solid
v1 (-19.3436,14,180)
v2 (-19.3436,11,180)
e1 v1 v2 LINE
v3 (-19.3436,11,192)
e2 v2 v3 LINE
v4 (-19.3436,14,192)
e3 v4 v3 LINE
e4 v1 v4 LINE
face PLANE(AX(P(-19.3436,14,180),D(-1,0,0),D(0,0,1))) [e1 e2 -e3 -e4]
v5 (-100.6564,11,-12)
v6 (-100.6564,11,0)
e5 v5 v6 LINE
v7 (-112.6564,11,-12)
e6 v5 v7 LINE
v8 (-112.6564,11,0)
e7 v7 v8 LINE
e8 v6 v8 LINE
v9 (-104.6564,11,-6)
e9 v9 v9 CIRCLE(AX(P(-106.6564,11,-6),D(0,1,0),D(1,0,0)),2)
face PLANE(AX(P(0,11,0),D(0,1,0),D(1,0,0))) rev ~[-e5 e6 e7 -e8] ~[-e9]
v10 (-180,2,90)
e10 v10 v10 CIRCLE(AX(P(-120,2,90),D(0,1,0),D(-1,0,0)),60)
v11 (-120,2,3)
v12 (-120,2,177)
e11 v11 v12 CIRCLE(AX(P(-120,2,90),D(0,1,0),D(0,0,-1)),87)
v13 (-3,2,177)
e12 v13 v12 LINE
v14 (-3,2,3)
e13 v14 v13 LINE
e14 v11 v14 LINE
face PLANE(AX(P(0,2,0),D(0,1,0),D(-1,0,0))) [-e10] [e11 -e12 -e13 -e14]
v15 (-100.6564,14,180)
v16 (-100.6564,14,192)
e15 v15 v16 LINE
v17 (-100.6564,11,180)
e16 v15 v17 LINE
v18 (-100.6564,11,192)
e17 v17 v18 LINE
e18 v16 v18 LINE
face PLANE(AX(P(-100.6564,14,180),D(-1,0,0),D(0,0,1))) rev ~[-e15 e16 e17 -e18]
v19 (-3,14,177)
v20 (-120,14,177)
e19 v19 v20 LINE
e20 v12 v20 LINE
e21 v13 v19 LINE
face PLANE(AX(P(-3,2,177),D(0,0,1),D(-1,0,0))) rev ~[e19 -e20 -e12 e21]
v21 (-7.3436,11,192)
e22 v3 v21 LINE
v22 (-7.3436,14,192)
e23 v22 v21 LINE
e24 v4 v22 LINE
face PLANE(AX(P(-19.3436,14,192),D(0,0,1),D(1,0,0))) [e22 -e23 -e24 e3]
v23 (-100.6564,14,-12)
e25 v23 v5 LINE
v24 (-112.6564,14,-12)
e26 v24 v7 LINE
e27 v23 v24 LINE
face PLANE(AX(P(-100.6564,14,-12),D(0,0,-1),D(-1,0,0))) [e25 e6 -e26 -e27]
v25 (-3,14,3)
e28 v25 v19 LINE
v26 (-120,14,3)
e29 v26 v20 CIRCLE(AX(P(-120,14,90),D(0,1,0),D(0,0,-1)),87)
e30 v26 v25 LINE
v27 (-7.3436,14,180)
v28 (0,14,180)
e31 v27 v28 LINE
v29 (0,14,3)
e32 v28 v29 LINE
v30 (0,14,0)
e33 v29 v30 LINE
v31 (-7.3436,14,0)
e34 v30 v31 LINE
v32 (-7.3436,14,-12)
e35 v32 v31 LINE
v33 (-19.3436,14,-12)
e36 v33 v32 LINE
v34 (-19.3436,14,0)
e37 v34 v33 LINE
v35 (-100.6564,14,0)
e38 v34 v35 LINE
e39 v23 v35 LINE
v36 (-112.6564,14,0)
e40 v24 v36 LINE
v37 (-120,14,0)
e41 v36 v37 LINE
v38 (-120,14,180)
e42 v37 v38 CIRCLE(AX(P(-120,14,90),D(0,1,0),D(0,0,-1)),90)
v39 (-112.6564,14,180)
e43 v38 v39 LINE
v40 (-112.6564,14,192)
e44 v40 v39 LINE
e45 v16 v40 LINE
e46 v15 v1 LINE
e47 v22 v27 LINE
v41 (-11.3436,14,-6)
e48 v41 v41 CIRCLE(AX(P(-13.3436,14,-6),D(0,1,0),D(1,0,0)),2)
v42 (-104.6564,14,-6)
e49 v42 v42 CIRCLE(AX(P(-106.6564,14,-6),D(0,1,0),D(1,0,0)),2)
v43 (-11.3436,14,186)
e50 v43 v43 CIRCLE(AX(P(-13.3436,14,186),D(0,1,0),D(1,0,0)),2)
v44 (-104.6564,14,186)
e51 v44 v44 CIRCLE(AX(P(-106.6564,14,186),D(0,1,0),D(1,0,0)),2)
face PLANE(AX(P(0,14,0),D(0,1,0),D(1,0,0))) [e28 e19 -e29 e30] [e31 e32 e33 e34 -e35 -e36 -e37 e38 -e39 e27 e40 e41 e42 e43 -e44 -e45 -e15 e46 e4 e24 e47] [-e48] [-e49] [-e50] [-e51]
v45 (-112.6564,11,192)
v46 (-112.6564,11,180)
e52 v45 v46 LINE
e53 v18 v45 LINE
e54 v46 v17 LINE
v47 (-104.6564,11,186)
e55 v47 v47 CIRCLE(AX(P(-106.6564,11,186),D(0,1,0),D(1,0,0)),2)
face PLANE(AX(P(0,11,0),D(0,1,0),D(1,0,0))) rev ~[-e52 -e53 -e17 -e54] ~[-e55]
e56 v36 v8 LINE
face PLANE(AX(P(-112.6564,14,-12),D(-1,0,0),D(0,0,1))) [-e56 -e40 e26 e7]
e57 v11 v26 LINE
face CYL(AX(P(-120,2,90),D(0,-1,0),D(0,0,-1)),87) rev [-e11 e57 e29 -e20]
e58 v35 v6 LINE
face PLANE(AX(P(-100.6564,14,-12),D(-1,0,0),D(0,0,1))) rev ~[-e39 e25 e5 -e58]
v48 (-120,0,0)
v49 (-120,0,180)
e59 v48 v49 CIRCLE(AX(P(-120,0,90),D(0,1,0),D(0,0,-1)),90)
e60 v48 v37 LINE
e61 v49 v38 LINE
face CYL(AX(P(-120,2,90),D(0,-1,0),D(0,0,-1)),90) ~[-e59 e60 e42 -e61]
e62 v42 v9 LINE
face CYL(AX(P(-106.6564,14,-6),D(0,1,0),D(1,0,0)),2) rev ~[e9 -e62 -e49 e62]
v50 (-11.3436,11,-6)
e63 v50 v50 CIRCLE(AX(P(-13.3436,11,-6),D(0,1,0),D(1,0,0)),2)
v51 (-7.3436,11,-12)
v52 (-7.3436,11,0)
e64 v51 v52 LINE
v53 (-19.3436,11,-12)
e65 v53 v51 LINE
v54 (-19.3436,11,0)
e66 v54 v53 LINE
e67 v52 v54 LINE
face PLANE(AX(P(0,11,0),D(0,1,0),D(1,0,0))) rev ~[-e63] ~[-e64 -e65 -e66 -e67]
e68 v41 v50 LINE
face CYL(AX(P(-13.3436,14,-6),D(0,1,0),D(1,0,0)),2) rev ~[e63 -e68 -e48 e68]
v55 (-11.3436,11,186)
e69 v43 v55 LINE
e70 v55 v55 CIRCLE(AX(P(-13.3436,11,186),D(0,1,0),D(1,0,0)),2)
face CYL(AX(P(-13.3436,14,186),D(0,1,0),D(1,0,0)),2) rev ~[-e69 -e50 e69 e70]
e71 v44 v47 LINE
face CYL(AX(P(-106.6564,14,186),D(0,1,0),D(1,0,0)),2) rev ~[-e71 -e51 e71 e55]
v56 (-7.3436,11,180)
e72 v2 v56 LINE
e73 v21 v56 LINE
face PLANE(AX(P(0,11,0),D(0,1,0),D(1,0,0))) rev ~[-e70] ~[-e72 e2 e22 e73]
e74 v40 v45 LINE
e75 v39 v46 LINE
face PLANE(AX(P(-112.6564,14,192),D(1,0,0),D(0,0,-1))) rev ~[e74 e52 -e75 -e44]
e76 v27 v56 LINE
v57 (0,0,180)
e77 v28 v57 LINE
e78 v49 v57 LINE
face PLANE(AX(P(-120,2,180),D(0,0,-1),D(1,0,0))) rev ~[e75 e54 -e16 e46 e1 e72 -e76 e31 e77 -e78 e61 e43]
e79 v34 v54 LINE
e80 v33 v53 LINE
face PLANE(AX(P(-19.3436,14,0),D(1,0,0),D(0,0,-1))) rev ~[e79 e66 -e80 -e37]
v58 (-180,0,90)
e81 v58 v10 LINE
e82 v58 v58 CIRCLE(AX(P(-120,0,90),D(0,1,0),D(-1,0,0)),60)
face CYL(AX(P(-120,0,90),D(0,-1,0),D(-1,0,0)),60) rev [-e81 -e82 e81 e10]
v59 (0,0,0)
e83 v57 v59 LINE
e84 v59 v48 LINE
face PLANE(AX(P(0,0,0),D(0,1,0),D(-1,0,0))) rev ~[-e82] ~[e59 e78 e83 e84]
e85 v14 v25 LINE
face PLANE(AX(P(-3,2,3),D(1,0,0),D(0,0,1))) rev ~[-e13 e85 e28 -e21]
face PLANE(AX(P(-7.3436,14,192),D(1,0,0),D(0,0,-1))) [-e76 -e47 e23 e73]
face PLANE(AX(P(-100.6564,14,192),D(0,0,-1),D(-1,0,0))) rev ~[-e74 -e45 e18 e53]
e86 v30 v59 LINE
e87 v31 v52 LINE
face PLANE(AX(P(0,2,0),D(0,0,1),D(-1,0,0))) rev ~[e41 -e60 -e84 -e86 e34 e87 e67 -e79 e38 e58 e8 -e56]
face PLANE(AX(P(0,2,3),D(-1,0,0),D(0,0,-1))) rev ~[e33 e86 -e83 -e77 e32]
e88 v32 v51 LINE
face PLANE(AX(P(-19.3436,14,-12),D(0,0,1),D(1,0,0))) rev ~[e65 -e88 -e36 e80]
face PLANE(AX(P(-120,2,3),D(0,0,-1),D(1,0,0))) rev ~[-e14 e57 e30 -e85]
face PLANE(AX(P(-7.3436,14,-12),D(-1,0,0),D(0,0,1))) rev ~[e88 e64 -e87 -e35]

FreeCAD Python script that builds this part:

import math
import FreeCAD as App
import Part
import Sketcher
from FreeCAD import Vector

doc = App.newDocument("Part")
body = doc.addObject("PartDesign::Body", "Body")

# Sketch on XZ plane
sketch1 = body.newObject("Sketcher::SketchObject", "Sketch")
sketch1.AttachmentSupport = (doc.getObject("XZ_Plane"), [""])
sketch1.MapMode = "FlatFace"
sketch1.addGeometry(Part.LineSegment(Vector(0, 180, 0), Vector(0, 0, 0)), False)
sketch1.addGeometry(Part.LineSegment(Vector(0, 0, 0), Vector(-120, 0, 0)), False)
sketch1.addGeometry(Part.ArcOfCircle(Part.Circle(Vector(-120, 90, 0), Vector(0, 0, 1), 90), math.radians(90), math.radians(270)), False)
sketch1.addGeometry(Part.LineSegment(Vector(-120, 180, 0), Vector(0, 180, 0)), False)
sketch1.addGeometry(Part.Circle(Vector(-120, 90, 0), Vector(0, 0, 1), 60), False)
sketch1.addConstraint(Sketcher.Constraint("Coincident", 0, 2, 1, 1))
sketch1.addConstraint(Sketcher.Constraint("Tangent", 1, 2, 2, 2))
sketch1.addConstraint(Sketcher.Constraint("Tangent", 2, 1, 3, 1))
sketch1.addConstraint(Sketcher.Constraint("Coincident", 3, 2, 0, 1))
sketch1.addConstraint(Sketcher.Constraint("Vertical", 0))
sketch1.addConstraint(Sketcher.Constraint("Horizontal", 1))
sketch1.addConstraint(Sketcher.Constraint("Horizontal", 3))
sketch1.addConstraint(Sketcher.Constraint("Coincident", 0, 2, -1, 1))
sketch1.addConstraint(Sketcher.Constraint("Coincident", 4, 3, 2, 3))
sketch1.addConstraint(Sketcher.Constraint("Diameter", 4, 120.0))
sketch1.addConstraint(Sketcher.Constraint("Radius", 2, 90.0))
sketch1.addConstraint(Sketcher.Constraint("DistanceX", 1, 2, 1, 1, 120.0))
pad1 = body.newObject("PartDesign::Pad", "Pad")
pad1.Profile = sketch1
pad1.Length = 2
pad1.Reversed = True

# Sketch on XZ plane
sketch2 = body.newObject("Sketcher::SketchObject", "Sketch001")
sketch2.AttachmentSupport = (doc.getObject("XZ_Plane"), [""])
sketch2.MapMode = "FlatFace"
sketch2.AttachmentOffset = App.Placement(Vector(0, 0, -2), App.Rotation())
sketch2.addGeometry(Part.LineSegment(Vector(0, 0, 0), Vector(-120, 0, 0)), False)
sketch2.addGeometry(Part.ArcOfCircle(Part.Circle(Vector(-120, 90, 0), Vector(0, 0, 1), 90), math.radians(90), math.radians(270)), False)
sketch2.addGeometry(Part.LineSegment(Vector(-120, 180, 0), Vector(0, 180, 0)), False)
sketch2.addGeometry(Part.LineSegment(Vector(0, 180, 0), Vector(0, 3, 0)), False)
sketch2.addGeometry(Part.LineSegment(Vector(0, 3, 0), Vector(0, 0, 0)), False)
sketch2.addGeometry(Part.LineSegment(Vector(-120, 3, 0), Vector(-3, 3, 0)), False)
sketch2.addGeometry(Part.LineSegment(Vector(-3, 3, 0), Vector(-3, 177, 0)), False)
sketch2.addGeometry(Part.LineSegment(Vector(-3, 177, 0), Vector(-120, 177, 0)), False)
sketch2.addGeometry(Part.ArcOfCircle(Part.Circle(Vector(-120, 90, 0), Vector(0, 0, 1), 87), math.radians(90), math.radians(270)), False)
sketch2.addConstraint(Sketcher.Constraint("Tangent", 0, 2, 1, 2))
sketch2.addConstraint(Sketcher.Constraint("Tangent", 1, 1, 2, 1))
sketch2.addConstraint(Sketcher.Constraint("Coincident", 2, 2, 3, 1))
sketch2.addConstraint(Sketcher.Constraint("Coincident", 3, 2, 4, 1))
sketch2.addConstraint(Sketcher.Constraint("Coincident", 4, 2, 0, 1))
sketch2.addConstraint(Sketcher.Constraint("Coincident", 5, 2, 6, 1))
sketch2.addConstraint(Sketcher.Constraint("Coincident", 6, 2, 7, 1))
sketch2.addConstraint(Sketcher.Constraint("Tangent", 7, 2, 8, 1))
sketch2.addConstraint(Sketcher.Constraint("Tangent", 8, 2, 5, 1))
sketch2.addConstraint(Sketcher.Constraint("Horizontal", 0))
sketch2.addConstraint(Sketcher.Constraint("Horizontal", 2))
sketch2.addConstraint(Sketcher.Constraint("Vertical", 3))
sketch2.addConstraint(Sketcher.Constraint("Vertical", 4))
sketch2.addConstraint(Sketcher.Constraint("Horizontal", 5))
sketch2.addConstraint(Sketcher.Constraint("Vertical", 6))
sketch2.addConstraint(Sketcher.Constraint("Horizontal", 7))
sketch2.addConstraint(Sketcher.Constraint("Coincident", 4, 2, -1, 1))
sketch2.addConstraint(Sketcher.Constraint("Coincident", 8, 3, 1, 3))
sketch2.addConstraint(Sketcher.Constraint("Horizontal", 3, 2, 5, 2))
sketch2.addConstraint(Sketcher.Constraint("Radius", 1, 90.0))
sketch2.addConstraint(Sketcher.Constraint("DistanceY", 4, 2, 4, 1, 3.0))
sketch2.addConstraint(Sketcher.Constraint("DistanceX", 5, 2, -1, 1, 3.0))
sketch2.addConstraint(Sketcher.Constraint("DistanceX", 0, 2, 0, 1, 120.0))
pad2 = body.newObject("PartDesign::Pad", "Pad001")
pad2.Profile = sketch2
pad2.Length = 12
pad2.Reversed = True

# Sketch on XZ plane
sketch3 = body.newObject("Sketcher::SketchObject", "Sketch002")
sketch3.AttachmentSupport = (doc.getObject("XZ_Plane"), [""])
sketch3.MapMode = "FlatFace"
sketch3.AttachmentOffset = App.Placement(Vector(0, 0, -14), App.Rotation())
sketch3.addGeometry(Part.LineSegment(Vector(-112.6564, 0, 0), Vector(-100.6564, 0, 0)), False)
sketch3.addGeometry(Part.LineSegment(Vector(-100.6564, 0, 0), Vector(-100.6564, -12, 0)), False)
sketch3.addGeometry(Part.LineSegment(Vector(-100.6564, -12, 0), Vector(-112.6564, -12, 0)), False)
sketch3.addGeometry(Part.LineSegment(Vector(-112.6564, -12, 0), Vector(-112.6564, 0, 0)), False)
sketch3.addGeometry(Part.Circle(Vector(-106.6564, -6, 0), Vector(0, 0, 1), 2), False)
sketch3.addGeometry(Part.LineSegment(Vector(-19.3436, -12, 0), Vector(-19.3436, 0, 0)), False)
sketch3.addGeometry(Part.LineSegment(Vector(-19.3436, 0, 0), Vector(-7.3436, 0, 0)), False)
sketch3.addGeometry(Part.LineSegment(Vector(-7.3436, 0, 0), Vector(-7.3436, -12, 0)), False)
sketch3.addGeometry(Part.LineSegment(Vector(-7.3436, -12, 0), Vector(-19.3436, -12, 0)), False)
sketch3.addGeometry(Part.Circle(Vector(-13.3436, -6, 0), Vector(0, 0, 1), 2), False)
sketch3.addGeometry(Part.LineSegment(Vector(-7.3436, 180, 0), Vector(-19.3436, 180, 0)), False)
sketch3.addGeometry(Part.LineSegment(Vector(-19.3436, 180, 0), Vector(-19.3436, 192, 0)), False)
sketch3.addGeometry(Part.LineSegment(Vector(-19.3436, 192, 0), Vector(-7.3436, 192, 0)), False)
sketch3.addGeometry(Part.LineSegment(Vector(-7.3436, 192, 0), Vector(-7.3436, 180, 0)), False)
sketch3.addGeometry(Part.Circle(Vector(-13.3436, 186, 0), Vector(0, 0, 1), 2), False)
sketch3.addGeometry(Part.LineSegment(Vector(-100.6564, 180, 0), Vector(-112.6564, 180, 0)), False)
sketch3.addGeometry(Part.LineSegment(Vector(-112.6564, 180, 0), Vector(-112.6564, 192, 0)), False)
sketch3.addGeometry(Part.LineSegment(Vector(-112.6564, 192, 0), Vector(-100.6564, 192, 0)), False)
sketch3.addGeometry(Part.LineSegment(Vector(-100.6564, 192, 0), Vector(-100.6564, 180, 0)), False)
sketch3.addGeometry(Part.Circle(Vector(-106.6564, 186, 0), Vector(0, 0, 1), 2), False)
sketch3.addConstraint(Sketcher.Constraint("Coincident", 0, 2, 1, 1))
sketch3.addConstraint(Sketcher.Constraint("Coincident", 1, 2, 2, 1))
sketch3.addConstraint(Sketcher.Constraint("Coincident", 2, 2, 3, 1))
sketch3.addConstraint(Sketcher.Constraint("Coincident", 3, 2, 0, 1))
sketch3.addConstraint(Sketcher.Constraint("Coincident", 5, 2, 6, 1))
sketch3.addConstraint(Sketcher.Constraint("Coincident", 6, 2, 7, 1))
sketch3.addConstraint(Sketcher.Constraint("Coincident", 7, 2, 8, 1))
sketch3.addConstraint(Sketcher.Constraint("Coincident", 8, 2, 5, 1))
sketch3.addConstraint(Sketcher.Constraint("Coincident", 10, 2, 11, 1))
sketch3.addConstraint(Sketcher.Constraint("Coincident", 11, 2, 12, 1))
sketch3.addConstraint(Sketcher.Constraint("Coincident", 12, 2, 13, 1))
sketch3.addConstraint(Sketcher.Constraint("Coincident", 13, 2, 10, 1))
sketch3.addConstraint(Sketcher.Constraint("Coincident", 15, 2, 16, 1))
sketch3.addConstraint(Sketcher.Constraint("Coincident", 16, 2, 17, 1))
sketch3.addConstraint(Sketcher.Constraint("Coincident", 17, 2, 18, 1))
sketch3.addConstraint(Sketcher.Constraint("Coincident", 18, 2, 15, 1))
sketch3.addConstraint(Sketcher.Constraint("Horizontal", 0))
sketch3.addConstraint(Sketcher.Constraint("Vertical", 1))
sketch3.addConstraint(Sketcher.Constraint("Horizontal", 2))
sketch3.addConstraint(Sketcher.Constraint("Vertical", 3))
sketch3.addConstraint(Sketcher.Constraint("Vertical", 5))
sketch3.addConstraint(Sketcher.Constraint("Horizontal", 6))
sketch3.addConstraint(Sketcher.Constraint("Vertical", 7))
sketch3.addConstraint(Sketcher.Constraint("Horizontal", 8))
sketch3.addConstraint(Sketcher.Constraint("Horizontal", 10))
sketch3.addConstraint(Sketcher.Constraint("Vertical", 11))
sketch3.addConstraint(Sketcher.Constraint("Horizontal", 12))
sketch3.addConstraint(Sketcher.Constraint("Vertical", 13))
sketch3.addConstraint(Sketcher.Constraint("Horizontal", 15))
sketch3.addConstraint(Sketcher.Constraint("Vertical", 16))
sketch3.addConstraint(Sketcher.Constraint("Horizontal", 17))
sketch3.addConstraint(Sketcher.Constraint("Vertical", 18))
sketch3.addConstraint(Sketcher.Constraint("Equal", 4, 9))
sketch3.addConstraint(Sketcher.Constraint("Equal", 9, 14))
sketch3.addConstraint(Sketcher.Constraint("Equal", 14, 19))
sketch3.addConstraint(Sketcher.Constraint("PointOnObject", 0, 2, -1))
sketch3.addConstraint(Sketcher.Constraint("PointOnObject", 5, 2, -1))
sketch3.addConstraint(Sketcher.Constraint("Horizontal", 4, 3, 9, 3))
sketch3.addConstraint(Sketcher.Constraint("Horizontal", 14, 3, 19, 3))
sketch3.addConstraint(Sketcher.Constraint("Horizontal", 2, 2, 7, 2))
sketch3.addConstraint(Sketcher.Constraint("Horizontal", 13, 2, 15, 2))
sketch3.addConstraint(Sketcher.Constraint("Horizontal", 12, 2, 16, 2))
sketch3.addConstraint(Sketcher.Constraint("Vertical", 9, 3, 14, 3))
sketch3.addConstraint(Sketcher.Constraint("Vertical", 4, 3, 19, 3))
sketch3.addConstraint(Sketcher.Constraint("Vertical", 8, 2, 10, 2))
sketch3.addConstraint(Sketcher.Constraint("Vertical", 7, 2, 12, 2))
sketch3.addConstraint(Sketcher.Constraint("Vertical", 3, 2, 15, 2))
sketch3.addConstraint(Sketcher.Constraint("Vertical", 1, 2, 17, 2))
sketch3.addConstraint(Sketcher.Constraint("Equal", 2, 6))
sketch3.addConstraint(Sketcher.Constraint("Equal", 17, 1))
sketch3.addConstraint(Sketcher.Constraint("Equal", 7, 11))
sketch3.addConstraint(Sketcher.Constraint("Diameter", 4, 4.0))
sketch3.addConstraint(Sketcher.Constraint("DistanceX", 0, 1, 0, 2, 12.0))
sketch3.addConstraint(Sketcher.Constraint("DistanceY", 4, 3, -1, 1, 6.0))
sketch3.addConstraint(Sketcher.Constraint("DistanceY", -1, 1, 14, 3, 186.0))
sketch3.addConstraint(Sketcher.Constraint("DistanceY", -1, 1, 10, 2, 180.0))
sketch3.addConstraint(Sketcher.Constraint("DistanceX", 4, 3, 0, 2, 6.0))
sketch3.addConstraint(Sketcher.Constraint("DistanceX", 5, 2, 9, 3, 6.0))
sketch3.addConstraint(Sketcher.Constraint("DistanceX", 4, 3, -1, 1, 106.6564))
sketch3.addConstraint(Sketcher.Constraint("DistanceX", 9, 3, -1, 1, 13.3436))
pad3 = body.newObject("PartDesign::Pad", "Pad002")
pad3.Profile = sketch3
pad3.Length = 3

doc.recompute()
